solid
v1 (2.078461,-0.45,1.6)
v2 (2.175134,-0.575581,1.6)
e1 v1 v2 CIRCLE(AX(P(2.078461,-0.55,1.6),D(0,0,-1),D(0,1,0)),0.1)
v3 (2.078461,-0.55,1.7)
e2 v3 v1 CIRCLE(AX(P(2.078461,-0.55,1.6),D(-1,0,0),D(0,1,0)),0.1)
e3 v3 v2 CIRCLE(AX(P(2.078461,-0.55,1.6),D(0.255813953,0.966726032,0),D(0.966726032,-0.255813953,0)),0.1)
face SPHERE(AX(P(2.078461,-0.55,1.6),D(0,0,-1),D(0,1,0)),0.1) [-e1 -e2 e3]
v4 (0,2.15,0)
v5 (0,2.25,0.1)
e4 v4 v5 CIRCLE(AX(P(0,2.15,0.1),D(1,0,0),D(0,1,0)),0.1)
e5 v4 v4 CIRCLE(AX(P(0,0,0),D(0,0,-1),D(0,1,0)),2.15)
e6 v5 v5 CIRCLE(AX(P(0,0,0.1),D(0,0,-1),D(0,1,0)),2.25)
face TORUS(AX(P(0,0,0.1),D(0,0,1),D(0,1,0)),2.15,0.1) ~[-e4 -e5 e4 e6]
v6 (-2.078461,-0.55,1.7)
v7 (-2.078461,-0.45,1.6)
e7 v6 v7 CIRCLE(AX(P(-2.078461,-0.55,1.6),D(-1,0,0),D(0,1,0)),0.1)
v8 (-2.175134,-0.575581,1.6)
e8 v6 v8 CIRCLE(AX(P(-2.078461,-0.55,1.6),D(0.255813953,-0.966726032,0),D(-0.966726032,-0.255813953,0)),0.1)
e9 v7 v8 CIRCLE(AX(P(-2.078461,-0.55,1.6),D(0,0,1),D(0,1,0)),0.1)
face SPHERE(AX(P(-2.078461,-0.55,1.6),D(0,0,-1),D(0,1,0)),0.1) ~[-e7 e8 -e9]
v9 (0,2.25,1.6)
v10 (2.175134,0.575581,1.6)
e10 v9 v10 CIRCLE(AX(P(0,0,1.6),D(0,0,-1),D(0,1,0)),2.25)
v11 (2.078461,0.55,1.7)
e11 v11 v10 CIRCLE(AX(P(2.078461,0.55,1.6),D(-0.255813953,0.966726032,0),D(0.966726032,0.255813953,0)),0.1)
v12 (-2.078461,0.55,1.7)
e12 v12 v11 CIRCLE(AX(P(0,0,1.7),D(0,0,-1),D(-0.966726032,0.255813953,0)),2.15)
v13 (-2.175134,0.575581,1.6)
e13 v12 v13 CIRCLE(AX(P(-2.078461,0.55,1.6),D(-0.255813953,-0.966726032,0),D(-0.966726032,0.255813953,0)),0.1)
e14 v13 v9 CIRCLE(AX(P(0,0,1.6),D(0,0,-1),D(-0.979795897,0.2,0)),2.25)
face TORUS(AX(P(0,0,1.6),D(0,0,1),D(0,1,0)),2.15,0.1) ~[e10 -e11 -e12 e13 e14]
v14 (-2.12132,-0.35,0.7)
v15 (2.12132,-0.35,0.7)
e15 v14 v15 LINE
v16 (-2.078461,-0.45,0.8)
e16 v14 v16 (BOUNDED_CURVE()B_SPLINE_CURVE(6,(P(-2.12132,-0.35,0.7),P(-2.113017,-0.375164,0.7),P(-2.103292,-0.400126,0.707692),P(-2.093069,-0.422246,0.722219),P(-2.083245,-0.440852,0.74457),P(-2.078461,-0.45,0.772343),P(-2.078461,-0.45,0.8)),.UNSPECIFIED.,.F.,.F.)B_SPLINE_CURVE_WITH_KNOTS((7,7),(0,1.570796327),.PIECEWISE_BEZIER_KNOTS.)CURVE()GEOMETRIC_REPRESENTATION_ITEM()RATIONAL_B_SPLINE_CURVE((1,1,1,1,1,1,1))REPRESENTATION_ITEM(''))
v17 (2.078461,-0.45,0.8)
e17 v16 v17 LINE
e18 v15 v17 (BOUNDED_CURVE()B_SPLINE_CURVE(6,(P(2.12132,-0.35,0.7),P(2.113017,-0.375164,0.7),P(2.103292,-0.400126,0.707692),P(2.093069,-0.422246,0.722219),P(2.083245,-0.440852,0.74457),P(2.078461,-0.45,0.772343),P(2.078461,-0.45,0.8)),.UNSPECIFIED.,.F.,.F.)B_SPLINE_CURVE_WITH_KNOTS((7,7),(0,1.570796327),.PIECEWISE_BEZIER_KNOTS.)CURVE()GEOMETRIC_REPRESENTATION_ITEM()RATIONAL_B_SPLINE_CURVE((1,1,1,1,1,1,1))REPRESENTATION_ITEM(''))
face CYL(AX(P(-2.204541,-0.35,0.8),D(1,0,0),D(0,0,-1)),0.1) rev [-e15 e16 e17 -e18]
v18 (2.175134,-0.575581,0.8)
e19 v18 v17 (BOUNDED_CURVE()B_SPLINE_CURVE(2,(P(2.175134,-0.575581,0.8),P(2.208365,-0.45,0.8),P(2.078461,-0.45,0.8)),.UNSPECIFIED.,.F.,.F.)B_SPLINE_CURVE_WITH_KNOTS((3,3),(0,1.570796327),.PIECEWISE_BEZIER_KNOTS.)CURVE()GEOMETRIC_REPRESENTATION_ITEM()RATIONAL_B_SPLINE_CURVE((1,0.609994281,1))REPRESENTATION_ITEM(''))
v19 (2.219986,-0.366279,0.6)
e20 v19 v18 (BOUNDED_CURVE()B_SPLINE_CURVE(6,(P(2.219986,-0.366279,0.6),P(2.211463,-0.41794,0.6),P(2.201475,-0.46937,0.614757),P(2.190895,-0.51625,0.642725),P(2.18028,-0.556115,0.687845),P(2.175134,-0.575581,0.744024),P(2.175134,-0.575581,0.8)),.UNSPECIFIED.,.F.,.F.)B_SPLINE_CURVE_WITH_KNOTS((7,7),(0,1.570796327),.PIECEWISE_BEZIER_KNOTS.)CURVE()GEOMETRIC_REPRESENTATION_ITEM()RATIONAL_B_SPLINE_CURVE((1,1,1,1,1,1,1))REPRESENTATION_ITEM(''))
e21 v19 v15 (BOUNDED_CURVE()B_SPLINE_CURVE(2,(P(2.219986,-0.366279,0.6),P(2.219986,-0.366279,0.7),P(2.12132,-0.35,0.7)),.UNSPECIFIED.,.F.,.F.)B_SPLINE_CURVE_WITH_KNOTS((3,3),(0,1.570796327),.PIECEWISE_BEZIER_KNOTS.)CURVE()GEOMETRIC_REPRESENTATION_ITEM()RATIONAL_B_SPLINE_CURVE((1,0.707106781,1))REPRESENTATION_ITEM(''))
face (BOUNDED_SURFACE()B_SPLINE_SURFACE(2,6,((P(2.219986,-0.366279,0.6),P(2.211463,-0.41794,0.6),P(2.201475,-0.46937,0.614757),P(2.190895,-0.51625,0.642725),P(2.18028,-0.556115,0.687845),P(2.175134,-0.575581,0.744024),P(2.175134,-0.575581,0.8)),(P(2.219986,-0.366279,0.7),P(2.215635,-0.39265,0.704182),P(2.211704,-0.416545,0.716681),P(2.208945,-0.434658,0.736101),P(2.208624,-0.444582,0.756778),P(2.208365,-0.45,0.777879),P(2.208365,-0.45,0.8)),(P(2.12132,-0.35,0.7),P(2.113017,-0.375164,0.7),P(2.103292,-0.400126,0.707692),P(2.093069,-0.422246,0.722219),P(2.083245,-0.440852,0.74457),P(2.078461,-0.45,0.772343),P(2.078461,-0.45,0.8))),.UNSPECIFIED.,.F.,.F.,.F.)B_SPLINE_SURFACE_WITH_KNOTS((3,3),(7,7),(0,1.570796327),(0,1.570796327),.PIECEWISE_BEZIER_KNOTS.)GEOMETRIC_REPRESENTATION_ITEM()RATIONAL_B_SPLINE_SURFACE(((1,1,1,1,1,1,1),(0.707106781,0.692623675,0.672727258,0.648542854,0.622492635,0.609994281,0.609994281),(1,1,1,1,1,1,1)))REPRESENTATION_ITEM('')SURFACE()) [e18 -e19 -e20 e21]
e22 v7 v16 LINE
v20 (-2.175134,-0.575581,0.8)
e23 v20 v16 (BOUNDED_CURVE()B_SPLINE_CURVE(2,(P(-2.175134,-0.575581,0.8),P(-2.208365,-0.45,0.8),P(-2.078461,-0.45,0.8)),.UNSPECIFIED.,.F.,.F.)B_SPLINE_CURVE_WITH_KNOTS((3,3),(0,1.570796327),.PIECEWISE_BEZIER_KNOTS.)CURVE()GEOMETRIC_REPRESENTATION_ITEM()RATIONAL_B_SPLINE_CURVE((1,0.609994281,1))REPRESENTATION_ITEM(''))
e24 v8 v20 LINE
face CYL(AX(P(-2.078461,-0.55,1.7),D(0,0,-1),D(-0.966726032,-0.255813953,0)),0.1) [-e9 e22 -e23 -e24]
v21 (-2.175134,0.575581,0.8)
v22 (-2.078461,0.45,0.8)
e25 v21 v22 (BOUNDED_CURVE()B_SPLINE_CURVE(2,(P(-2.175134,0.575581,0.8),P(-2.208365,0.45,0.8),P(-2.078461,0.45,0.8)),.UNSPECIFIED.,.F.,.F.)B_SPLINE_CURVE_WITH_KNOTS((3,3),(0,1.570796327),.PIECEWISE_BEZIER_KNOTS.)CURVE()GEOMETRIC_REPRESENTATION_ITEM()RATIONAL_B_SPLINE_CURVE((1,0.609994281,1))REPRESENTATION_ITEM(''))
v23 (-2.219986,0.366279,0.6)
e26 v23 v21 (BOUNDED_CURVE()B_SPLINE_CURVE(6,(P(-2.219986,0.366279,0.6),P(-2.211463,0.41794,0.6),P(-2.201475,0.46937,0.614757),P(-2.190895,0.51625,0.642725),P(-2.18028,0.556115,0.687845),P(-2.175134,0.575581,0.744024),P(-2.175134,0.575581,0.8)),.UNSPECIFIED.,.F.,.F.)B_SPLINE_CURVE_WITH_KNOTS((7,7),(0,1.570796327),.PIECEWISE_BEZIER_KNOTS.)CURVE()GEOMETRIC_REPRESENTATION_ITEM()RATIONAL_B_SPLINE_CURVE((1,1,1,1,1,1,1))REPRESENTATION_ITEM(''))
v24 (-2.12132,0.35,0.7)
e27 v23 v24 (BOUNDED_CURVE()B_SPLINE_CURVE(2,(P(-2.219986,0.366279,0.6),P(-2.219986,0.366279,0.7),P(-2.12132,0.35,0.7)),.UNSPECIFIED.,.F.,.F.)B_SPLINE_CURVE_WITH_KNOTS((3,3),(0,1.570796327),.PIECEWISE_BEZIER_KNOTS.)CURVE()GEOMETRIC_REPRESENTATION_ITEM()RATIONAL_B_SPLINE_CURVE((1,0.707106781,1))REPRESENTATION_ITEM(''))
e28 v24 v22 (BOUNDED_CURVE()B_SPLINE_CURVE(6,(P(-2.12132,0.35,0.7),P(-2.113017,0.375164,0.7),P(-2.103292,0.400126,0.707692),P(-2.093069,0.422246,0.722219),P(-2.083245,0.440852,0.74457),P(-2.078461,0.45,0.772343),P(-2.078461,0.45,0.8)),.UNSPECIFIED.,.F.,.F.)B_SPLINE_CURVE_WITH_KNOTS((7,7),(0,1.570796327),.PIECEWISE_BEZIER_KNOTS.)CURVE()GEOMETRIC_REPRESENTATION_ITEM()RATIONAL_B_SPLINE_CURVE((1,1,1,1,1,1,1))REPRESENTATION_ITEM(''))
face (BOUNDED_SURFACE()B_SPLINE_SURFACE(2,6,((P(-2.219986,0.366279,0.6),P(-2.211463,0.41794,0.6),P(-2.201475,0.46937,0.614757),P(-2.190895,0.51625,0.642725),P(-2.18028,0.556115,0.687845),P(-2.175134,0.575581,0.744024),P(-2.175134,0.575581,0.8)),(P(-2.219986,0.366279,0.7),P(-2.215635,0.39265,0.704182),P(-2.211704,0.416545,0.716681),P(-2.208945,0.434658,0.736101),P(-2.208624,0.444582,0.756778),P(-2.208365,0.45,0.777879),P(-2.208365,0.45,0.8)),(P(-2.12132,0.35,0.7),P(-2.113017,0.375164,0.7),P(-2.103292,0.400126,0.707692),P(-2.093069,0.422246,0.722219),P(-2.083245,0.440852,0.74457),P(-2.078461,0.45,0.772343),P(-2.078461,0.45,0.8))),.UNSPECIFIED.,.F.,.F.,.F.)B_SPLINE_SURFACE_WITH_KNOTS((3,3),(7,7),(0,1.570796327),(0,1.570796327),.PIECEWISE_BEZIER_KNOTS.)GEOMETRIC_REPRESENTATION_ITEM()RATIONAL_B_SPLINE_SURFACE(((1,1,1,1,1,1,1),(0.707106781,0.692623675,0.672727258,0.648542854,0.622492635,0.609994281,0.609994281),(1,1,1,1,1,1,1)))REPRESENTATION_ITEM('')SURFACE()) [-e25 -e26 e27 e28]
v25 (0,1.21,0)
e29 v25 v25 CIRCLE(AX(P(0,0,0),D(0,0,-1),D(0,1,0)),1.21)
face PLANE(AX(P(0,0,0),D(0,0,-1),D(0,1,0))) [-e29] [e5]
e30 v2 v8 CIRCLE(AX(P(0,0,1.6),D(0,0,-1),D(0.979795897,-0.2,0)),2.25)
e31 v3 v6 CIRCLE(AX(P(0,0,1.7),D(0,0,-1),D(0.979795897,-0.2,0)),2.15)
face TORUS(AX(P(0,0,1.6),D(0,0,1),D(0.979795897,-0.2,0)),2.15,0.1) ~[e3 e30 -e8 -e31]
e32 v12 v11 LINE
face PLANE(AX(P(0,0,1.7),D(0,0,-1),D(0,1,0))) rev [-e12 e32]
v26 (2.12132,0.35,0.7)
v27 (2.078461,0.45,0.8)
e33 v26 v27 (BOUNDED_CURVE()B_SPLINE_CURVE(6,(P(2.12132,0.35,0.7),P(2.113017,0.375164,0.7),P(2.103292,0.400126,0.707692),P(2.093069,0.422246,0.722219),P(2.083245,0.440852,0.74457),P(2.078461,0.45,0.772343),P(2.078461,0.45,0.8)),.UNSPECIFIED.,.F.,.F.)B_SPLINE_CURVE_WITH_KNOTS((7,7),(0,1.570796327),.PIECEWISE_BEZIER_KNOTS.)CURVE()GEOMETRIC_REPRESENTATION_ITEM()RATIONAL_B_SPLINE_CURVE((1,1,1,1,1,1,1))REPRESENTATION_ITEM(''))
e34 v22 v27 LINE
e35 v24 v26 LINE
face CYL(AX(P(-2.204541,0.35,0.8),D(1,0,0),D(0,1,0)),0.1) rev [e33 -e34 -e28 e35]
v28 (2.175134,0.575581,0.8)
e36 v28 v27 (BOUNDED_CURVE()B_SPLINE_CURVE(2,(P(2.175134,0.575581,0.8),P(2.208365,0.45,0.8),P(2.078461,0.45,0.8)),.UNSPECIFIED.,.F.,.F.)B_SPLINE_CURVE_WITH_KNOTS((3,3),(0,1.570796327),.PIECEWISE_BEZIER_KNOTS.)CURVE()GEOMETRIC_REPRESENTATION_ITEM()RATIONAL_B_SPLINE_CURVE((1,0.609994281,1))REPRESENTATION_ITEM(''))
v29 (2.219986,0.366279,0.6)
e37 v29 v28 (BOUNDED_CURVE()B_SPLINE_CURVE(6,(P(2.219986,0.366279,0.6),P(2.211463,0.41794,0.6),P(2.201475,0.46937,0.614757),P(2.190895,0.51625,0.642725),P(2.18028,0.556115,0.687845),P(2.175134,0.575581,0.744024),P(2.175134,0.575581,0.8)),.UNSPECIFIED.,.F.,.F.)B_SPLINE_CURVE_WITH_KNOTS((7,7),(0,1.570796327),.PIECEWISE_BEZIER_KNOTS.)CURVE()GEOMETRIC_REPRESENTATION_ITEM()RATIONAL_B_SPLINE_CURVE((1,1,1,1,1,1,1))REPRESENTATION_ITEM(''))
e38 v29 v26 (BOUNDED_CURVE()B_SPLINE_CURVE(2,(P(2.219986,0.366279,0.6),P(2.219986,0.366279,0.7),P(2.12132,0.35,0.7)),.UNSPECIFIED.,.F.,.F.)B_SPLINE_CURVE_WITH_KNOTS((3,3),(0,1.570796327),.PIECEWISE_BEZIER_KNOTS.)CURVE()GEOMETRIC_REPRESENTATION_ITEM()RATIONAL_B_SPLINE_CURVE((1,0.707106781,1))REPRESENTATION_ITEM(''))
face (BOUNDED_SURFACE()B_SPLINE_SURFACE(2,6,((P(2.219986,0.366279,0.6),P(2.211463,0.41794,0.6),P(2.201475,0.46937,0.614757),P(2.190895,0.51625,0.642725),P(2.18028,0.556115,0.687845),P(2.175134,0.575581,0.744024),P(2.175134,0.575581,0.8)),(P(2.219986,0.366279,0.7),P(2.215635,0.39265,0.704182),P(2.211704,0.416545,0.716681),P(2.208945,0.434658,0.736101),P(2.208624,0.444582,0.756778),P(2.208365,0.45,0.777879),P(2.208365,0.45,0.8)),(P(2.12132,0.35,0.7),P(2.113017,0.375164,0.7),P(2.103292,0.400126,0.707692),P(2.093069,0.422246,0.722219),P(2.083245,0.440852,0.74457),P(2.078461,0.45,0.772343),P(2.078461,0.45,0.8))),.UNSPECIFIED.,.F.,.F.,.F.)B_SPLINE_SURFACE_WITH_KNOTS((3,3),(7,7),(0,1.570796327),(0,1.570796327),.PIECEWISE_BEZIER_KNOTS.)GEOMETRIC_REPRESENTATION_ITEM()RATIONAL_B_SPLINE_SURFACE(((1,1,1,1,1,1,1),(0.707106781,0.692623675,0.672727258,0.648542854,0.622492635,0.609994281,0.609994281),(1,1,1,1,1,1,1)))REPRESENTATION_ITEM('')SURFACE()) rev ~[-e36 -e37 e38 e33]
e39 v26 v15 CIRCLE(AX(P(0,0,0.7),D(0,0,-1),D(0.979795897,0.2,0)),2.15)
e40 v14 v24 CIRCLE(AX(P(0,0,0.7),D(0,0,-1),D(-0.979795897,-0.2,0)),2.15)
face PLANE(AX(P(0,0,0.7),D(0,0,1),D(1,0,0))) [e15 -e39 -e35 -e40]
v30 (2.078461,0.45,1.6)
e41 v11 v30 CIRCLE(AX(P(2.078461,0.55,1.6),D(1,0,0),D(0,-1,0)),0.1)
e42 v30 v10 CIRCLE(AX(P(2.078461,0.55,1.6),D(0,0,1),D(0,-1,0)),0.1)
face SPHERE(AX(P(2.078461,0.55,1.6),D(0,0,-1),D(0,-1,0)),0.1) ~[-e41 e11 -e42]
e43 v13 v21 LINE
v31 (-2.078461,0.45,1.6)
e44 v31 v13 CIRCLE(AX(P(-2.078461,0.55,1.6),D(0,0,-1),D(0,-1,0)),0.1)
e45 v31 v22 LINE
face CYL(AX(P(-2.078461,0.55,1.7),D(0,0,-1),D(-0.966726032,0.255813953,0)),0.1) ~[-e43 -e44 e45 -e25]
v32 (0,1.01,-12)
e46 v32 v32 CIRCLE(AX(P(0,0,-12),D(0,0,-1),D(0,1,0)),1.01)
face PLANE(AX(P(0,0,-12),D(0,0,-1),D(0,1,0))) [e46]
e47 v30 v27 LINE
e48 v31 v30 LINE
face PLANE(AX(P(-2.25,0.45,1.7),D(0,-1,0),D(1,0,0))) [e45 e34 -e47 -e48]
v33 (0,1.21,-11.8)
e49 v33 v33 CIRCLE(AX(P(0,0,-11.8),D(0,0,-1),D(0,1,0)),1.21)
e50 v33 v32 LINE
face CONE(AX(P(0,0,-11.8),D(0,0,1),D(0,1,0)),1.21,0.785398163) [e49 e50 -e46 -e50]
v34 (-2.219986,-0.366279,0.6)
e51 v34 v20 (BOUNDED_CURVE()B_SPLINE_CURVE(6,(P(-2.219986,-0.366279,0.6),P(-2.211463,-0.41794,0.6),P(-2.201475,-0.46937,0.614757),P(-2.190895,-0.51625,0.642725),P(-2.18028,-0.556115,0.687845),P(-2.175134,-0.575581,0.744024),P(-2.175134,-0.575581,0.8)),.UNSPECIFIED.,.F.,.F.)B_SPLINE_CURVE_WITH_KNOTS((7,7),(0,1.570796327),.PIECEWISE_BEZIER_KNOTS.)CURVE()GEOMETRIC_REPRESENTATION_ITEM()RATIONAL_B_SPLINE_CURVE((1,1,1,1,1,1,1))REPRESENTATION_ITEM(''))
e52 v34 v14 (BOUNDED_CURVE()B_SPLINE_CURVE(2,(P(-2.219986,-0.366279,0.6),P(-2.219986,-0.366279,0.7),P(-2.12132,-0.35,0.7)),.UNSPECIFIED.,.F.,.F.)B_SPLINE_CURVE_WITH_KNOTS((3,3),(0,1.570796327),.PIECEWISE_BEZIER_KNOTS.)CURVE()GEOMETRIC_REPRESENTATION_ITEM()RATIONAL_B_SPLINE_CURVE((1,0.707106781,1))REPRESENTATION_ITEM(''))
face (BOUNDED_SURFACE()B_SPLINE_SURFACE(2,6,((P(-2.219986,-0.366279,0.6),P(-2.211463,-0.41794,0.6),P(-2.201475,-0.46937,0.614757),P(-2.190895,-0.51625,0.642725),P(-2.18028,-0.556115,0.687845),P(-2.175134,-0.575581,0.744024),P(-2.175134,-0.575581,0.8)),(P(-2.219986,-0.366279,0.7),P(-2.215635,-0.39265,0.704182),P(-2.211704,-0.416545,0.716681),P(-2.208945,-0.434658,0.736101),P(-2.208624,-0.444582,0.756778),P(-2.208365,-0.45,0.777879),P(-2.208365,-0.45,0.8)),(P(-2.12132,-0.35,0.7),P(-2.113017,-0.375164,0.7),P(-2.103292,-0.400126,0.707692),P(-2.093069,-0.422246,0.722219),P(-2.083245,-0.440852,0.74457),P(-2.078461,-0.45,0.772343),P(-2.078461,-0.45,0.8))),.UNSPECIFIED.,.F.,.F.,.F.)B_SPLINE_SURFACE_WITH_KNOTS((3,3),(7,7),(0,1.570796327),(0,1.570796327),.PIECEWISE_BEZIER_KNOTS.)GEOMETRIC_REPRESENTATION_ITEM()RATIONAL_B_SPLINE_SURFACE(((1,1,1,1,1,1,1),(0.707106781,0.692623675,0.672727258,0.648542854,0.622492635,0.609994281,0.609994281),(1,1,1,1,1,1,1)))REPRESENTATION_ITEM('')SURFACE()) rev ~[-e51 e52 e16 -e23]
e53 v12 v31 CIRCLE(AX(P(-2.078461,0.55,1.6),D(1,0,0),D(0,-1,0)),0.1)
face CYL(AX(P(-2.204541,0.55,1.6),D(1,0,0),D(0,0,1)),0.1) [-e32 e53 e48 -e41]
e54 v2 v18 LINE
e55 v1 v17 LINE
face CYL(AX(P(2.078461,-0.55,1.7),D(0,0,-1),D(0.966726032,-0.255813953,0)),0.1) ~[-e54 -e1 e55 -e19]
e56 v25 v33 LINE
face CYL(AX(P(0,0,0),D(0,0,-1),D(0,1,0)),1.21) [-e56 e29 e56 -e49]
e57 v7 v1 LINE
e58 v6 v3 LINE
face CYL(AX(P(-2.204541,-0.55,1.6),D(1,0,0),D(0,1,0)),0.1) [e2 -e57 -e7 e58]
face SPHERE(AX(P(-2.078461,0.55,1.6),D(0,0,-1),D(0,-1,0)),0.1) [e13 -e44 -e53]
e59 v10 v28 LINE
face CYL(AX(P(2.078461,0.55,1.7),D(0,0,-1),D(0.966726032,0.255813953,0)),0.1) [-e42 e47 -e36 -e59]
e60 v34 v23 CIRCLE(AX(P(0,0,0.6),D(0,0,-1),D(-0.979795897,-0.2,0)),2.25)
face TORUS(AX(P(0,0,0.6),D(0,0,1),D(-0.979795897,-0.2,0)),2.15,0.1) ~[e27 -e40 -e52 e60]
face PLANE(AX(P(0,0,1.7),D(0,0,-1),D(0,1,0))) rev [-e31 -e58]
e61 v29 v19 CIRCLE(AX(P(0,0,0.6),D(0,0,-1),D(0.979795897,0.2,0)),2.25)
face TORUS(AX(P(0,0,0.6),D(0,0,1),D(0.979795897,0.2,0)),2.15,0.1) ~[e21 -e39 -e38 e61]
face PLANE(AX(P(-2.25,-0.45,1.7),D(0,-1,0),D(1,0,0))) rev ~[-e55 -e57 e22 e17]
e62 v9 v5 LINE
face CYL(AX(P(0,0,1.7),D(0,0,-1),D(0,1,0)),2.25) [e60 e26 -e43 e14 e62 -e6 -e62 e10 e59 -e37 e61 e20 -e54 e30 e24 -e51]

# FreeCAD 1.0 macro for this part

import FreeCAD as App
import Part
import Sketcher


def edges_at(feature, points):
    """Names of the edges that pass closest to the given points."""
    edges = feature.Shape.Edges
    near = lambda p: min(range(len(edges)), key=lambda i: edges[i].distToShape(Part.Vertex(*p))[0])
    return sorted({f"Edge{near(p) + 1}" for p in points})

doc = App.newDocument("Part")
body = doc.addObject("PartDesign::Body", "Body")

# Sketch on YZ plane
sketch1 = doc.addObject("Sketcher::SketchObject", "Sketch")
body.addObject(sketch1)
sketch1.AttachmentSupport = (doc.YZ_Plane, [""])
sketch1.MapMode = "FlatFace"
sketch1.addGeometry([
    Part.LineSegment(App.Vector(2.2, 1.7, 0), App.Vector(0, 1.7, 0)),  # 0
    Part.LineSegment(App.Vector(0, 1.7, 0), App.Vector(0, -12, 0)),  # 1
    Part.LineSegment(App.Vector(0, -12, 0), App.Vector(1.2, -12, 0)),  # 2
    Part.LineSegment(App.Vector(1.2, -12, 0), App.Vector(1.2, 0, 0)),  # 3
    Part.LineSegment(App.Vector(1.2, 0, 0), App.Vector(2.2, 0, 0)),  # 4
    Part.LineSegment(App.Vector(2.2, 0, 0), App.Vector(2.2, 1.7, 0)),  # 5
], False)
sketch1.addConstraint([
    Sketcher.Constraint("Coincident", 0, 2, 1, 1),
    Sketcher.Constraint("Coincident", 1, 2, 2, 1),
    Sketcher.Constraint("Coincident", 2, 2, 3, 1),
    Sketcher.Constraint("Coincident", 3, 2, 4, 1),
    Sketcher.Constraint("Coincident", 4, 2, 5, 1),
    Sketcher.Constraint("Coincident", 5, 2, 0, 1),
    Sketcher.Constraint("Horizontal", 0),
    Sketcher.Constraint("Vertical", 1),
    Sketcher.Constraint("Horizontal", 2),
    Sketcher.Constraint("Vertical", 3),
    Sketcher.Constraint("Horizontal", 4),
    Sketcher.Constraint("Vertical", 5),
    Sketcher.Constraint("PointOnObject", 0, 2, -2),
    Sketcher.Constraint("PointOnObject", 3, 2, -1),
    Sketcher.Constraint("DistanceY", 3, 1, 3, 2, 12.0),
    Sketcher.Constraint("DistanceY", 1, 2, 1, 1, 13.7),
    Sketcher.Constraint("DistanceX", 0, 2, 0, 1, 2.25),
    Sketcher.Constraint("DistanceX", 2, 1, 2, 2, 1.21),
])
revolution = doc.addObject("PartDesign::Revolution", "Revolution")
body.addObject(revolution)
revolution.Profile = sketch1
revolution.ReferenceAxis = (sketch1, ["V_Axis"])
revolution.Angle = 360

# Sketch on XY plane
sketch2 = doc.addObject("Sketcher::SketchObject", "Sketch001")
body.addObject(sketch2)
sketch2.AttachmentSupport = (doc.XY_Plane, [""])
sketch2.MapMode = "FlatFace"
sketch2.AttachmentOffset = App.Placement(App.Vector(0, 0, 1.7), App.Rotation())
sketch2.addGeometry([
    Part.LineSegment(App.Vector(-2.2, 0.5, 0), App.Vector(-2.2, -0.5, 0)),
    Part.LineSegment(App.Vector(-2.2, -0.5, 0), App.Vector(2.2, -0.5, 0)),
    Part.LineSegment(App.Vector(2.2, -0.5, 0), App.Vector(2.2, 0.5, 0)),
    Part.LineSegment(App.Vector(2.2, 0.5, 0), App.Vector(-2.2, 0.5, 0)),
], False)
sketch2.addConstraint([
    Sketcher.Constraint("Coincident", 0, 2, 1, 1),
    Sketcher.Constraint("Coincident", 1, 2, 2, 1),
    Sketcher.Constraint("Coincident", 2, 2, 3, 1),
    Sketcher.Constraint("Coincident", 3, 2, 0, 1),
    Sketcher.Constraint("Vertical", 0),
    Sketcher.Constraint("Horizontal", 1),
    Sketcher.Constraint("Vertical", 2),
    Sketcher.Constraint("Horizontal", 3),
    Sketcher.Constraint("Symmetric", 0, 2, 2, 2, -1, 1),
    Sketcher.Constraint("DistanceX", 1, 1, 1, 2, 4.5),
    Sketcher.Constraint("DistanceY", 0, 2, 0, 1, 0.9),
])
pocket1 = doc.addObject("PartDesign::Pocket", "Pocket")
body.addObject(pocket1)
pocket1.Profile = sketch2
pocket1.Length = 1
doc.recompute()

chamfer = doc.addObject("PartDesign::Chamfer", "Chamfer")
body.addObject(chamfer)
chamfer.Base = (pocket1, edges_at(pocket1, [(0, -1.21, -12)]))
chamfer.Size = 0.2
doc.recompute()

fillet = doc.addObject("PartDesign::Fillet", "Fillet")
body.addObject(fillet)
fillet.Base = (chamfer, edges_at(chamfer, [
    (1.423, 1.743, 1.7),
    (0, -2.25, 1.7),
    (2.25, 0, 0.7),
    (2.205, 0.45, 1.2),
    (2.205, -0.45, 1.2),
    (-2.25, 0, 0.7),
    (-2.205, 0.45, 1.2),
    (-2.205, -0.45, 1.2),
    (0, -0.45, 0.7),
    (0, 0.45, 0.7),
    (0, 0.45, 1.7),
    (0, -0.45, 1.7),
    (0, -2.25, 0),
]))
fillet.Radius = 0.1

doc.recompute()
